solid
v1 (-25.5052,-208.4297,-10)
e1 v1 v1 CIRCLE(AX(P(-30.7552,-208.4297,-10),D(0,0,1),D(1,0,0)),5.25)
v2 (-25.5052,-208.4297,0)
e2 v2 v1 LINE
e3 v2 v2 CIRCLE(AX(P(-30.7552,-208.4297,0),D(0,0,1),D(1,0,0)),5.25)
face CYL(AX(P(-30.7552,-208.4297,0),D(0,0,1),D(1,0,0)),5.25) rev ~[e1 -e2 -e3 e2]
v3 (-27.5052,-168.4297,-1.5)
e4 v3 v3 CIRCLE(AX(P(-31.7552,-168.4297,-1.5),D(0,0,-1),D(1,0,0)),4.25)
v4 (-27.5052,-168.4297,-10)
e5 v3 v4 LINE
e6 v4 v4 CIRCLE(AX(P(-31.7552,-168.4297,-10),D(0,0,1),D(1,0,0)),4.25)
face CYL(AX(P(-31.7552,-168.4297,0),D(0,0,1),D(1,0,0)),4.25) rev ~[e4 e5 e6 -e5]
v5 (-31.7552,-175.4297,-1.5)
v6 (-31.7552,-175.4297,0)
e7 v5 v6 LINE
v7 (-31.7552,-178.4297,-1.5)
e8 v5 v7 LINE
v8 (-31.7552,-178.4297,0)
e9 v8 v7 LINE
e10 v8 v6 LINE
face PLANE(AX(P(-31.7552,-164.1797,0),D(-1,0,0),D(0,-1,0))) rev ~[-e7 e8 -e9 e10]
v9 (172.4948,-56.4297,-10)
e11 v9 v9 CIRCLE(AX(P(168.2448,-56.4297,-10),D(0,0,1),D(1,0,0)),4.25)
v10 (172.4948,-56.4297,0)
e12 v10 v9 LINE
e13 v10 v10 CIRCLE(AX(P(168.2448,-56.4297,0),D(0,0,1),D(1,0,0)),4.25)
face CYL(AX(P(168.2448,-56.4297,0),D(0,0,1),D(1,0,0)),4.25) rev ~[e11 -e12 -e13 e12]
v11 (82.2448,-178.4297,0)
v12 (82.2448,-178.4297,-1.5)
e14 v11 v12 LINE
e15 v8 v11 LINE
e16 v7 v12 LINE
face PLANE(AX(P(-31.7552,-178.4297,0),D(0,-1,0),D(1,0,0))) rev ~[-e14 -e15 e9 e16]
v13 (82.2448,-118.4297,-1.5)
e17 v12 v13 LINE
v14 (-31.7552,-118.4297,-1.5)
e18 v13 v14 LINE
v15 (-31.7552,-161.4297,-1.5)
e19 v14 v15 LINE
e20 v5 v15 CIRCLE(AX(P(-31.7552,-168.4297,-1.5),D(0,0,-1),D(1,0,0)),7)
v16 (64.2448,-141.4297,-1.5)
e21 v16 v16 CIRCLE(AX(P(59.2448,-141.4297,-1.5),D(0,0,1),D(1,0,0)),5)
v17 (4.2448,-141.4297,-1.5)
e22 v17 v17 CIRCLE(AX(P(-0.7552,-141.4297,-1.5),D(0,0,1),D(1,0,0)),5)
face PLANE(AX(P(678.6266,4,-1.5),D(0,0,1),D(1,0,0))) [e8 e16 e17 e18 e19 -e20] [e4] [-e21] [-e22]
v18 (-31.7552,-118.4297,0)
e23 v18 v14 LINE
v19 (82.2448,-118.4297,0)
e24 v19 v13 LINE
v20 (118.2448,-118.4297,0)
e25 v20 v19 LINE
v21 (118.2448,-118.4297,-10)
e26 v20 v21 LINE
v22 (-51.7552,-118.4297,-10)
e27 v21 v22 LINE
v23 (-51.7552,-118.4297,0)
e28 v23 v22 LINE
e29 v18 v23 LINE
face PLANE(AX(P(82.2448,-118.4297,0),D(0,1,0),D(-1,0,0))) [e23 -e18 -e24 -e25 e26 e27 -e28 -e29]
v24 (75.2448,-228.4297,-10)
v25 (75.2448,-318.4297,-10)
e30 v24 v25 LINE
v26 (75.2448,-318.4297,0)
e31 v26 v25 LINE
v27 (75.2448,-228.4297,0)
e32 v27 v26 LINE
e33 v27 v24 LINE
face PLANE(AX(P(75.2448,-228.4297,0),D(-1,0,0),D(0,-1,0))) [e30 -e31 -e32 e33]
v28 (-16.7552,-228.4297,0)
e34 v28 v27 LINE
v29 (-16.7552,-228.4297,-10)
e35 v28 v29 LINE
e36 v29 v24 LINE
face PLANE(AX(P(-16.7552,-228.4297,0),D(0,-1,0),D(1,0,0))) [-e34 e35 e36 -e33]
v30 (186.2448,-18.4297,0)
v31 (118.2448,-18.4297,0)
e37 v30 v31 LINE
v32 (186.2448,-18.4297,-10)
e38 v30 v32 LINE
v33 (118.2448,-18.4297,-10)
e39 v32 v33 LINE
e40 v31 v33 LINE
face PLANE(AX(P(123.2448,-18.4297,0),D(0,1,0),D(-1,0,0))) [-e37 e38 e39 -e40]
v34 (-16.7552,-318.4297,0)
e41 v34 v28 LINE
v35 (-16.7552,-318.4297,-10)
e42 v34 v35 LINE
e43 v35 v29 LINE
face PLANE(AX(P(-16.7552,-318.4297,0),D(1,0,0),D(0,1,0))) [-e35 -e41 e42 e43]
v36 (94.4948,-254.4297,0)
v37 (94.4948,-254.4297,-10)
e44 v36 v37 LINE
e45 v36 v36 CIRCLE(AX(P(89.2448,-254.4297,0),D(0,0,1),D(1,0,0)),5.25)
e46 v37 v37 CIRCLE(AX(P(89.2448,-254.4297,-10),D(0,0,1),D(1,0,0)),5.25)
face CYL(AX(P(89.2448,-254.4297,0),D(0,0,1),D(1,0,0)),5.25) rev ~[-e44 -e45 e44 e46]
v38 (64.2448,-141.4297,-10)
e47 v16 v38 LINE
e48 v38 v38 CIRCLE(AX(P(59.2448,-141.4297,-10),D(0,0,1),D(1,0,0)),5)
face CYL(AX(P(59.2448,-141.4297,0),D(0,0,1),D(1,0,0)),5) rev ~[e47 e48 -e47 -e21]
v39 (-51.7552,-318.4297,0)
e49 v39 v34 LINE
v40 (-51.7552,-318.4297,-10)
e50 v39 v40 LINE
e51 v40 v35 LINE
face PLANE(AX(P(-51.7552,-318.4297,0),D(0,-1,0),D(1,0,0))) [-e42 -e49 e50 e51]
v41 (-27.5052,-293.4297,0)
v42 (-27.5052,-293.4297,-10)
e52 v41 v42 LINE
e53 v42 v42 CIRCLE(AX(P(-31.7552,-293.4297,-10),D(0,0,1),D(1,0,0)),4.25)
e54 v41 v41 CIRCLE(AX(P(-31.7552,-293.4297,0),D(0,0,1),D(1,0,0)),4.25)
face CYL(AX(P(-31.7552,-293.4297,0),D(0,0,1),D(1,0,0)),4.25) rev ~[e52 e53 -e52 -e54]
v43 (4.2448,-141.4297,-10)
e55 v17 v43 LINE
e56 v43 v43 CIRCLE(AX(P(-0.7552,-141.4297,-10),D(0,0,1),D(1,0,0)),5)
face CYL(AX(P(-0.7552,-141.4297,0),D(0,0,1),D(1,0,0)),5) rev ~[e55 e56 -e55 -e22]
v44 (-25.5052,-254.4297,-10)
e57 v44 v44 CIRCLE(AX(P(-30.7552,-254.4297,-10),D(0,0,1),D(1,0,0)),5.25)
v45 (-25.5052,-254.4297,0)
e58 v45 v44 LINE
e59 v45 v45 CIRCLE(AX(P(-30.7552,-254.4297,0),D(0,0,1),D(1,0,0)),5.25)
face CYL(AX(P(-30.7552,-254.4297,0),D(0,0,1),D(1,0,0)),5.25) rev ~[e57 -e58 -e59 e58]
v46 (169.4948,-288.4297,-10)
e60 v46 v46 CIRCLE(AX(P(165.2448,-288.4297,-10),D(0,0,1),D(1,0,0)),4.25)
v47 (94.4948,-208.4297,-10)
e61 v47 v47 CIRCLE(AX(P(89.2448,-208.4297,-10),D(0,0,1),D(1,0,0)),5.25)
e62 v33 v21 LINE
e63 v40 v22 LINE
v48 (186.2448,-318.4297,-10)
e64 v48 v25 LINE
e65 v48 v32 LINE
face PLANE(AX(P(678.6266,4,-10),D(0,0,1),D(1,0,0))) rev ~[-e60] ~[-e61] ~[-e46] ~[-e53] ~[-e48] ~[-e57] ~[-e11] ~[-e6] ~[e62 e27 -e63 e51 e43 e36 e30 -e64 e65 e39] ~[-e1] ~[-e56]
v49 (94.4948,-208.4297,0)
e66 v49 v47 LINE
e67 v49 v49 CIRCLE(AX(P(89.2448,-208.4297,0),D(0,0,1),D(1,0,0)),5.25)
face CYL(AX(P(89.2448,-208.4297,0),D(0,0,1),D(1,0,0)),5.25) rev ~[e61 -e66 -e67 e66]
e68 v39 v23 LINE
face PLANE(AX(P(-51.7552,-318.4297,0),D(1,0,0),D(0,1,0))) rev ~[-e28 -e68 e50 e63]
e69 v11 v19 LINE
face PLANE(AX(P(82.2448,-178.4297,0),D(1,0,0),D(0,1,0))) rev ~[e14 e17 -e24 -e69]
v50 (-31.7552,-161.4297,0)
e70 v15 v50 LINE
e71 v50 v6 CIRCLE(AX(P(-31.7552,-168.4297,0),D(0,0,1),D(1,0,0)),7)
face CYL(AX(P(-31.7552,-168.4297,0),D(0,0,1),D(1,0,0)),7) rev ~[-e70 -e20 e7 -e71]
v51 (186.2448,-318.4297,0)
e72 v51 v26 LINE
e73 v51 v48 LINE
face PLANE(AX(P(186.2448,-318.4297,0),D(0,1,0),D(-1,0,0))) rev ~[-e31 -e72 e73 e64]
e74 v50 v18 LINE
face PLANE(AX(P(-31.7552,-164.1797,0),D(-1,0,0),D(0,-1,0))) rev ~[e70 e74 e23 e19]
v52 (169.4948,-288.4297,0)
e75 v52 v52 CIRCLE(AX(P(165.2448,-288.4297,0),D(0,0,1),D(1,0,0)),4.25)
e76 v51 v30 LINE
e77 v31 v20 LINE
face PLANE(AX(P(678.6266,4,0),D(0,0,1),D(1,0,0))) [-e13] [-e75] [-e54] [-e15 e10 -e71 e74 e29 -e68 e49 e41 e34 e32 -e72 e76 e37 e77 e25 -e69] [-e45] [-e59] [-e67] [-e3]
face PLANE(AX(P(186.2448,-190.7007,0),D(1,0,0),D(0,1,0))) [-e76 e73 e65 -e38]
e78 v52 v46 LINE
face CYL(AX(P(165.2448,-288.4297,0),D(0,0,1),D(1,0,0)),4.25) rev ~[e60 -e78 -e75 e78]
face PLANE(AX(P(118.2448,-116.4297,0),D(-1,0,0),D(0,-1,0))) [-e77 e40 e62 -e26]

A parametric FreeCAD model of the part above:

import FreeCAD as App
import Part
import Sketcher
Q = App.Units.Quantity

doc = App.newDocument("Part")
body = doc.addObject("PartDesign::Body", "Body")

sketch1 = doc.addObject("Sketcher::SketchObject", "Sketch")
body.addObject(sketch1)
sketch1.AttachmentSupport = (doc.XY_Plane, [""])
sketch1.MapMode = "FlatFace"
sketch1.addGeometry([
    Part.LineSegment(App.Vector(-51.8, -118.4, 0), App.Vector(-51.8, -318.4, 0)),
    Part.LineSegment(App.Vector(-51.8, -318.4, 0), App.Vector(-16.8, -318.4, 0)),
    Part.LineSegment(App.Vector(-16.8, -318.4, 0), App.Vector(-16.8, -228.4, 0)),
    Part.LineSegment(App.Vector(-16.8, -228.4, 0), App.Vector(75.2, -228.4, 0)),
    Part.LineSegment(App.Vector(75.2, -228.4, 0), App.Vector(75.2, -318.4, 0)),
    Part.LineSegment(App.Vector(75.2, -318.4, 0), App.Vector(186.2, -318.4, 0)),
    Part.LineSegment(App.Vector(186.2, -318.4, 0), App.Vector(186.2, -18.4, 0)),
    Part.LineSegment(App.Vector(186.2, -18.4, 0), App.Vector(118.2, -18.4, 0)),
    Part.LineSegment(App.Vector(118.2, -18.4, 0), App.Vector(118.2, -118.4, 0)),
    Part.LineSegment(App.Vector(118.2, -118.4, 0), App.Vector(-51.8, -118.4, 0)),
    Part.Circle(App.Vector(-0.8, -141.4, 0), App.Vector(0, 0, 1), 5),
    Part.Circle(App.Vector(59.2, -141.4, 0), App.Vector(0, 0, 1), 5),
    Part.Circle(App.Vector(168.2, -56.4, 0), App.Vector(0, 0, 1), 4.2),
    Part.Circle(App.Vector(165.2, -288.4, 0), App.Vector(0, 0, 1), 4.2),
    Part.Circle(App.Vector(-31.8, -293.4, 0), App.Vector(0, 0, 1), 4.2),
], False)
sketch1.addConstraint([
    Sketcher.Constraint("Coincident", 0, 2, 1, 1),
    Sketcher.Constraint("Coincident", 1, 2, 2, 1),
    Sketcher.Constraint("Coincident", 2, 2, 3, 1),
    Sketcher.Constraint("Coincident", 3, 2, 4, 1),
    Sketcher.Constraint("Coincident", 4, 2, 5, 1),
    Sketcher.Constraint("Coincident", 5, 2, 6, 1),
    Sketcher.Constraint("Coincident", 6, 2, 7, 1),
    Sketcher.Constraint("Coincident", 7, 2, 8, 1),
    Sketcher.Constraint("Coincident", 8, 2, 9, 1),
    Sketcher.Constraint("Coincident", 9, 2, 0, 1),
    Sketcher.Constraint("Vertical", 0),
    Sketcher.Constraint("Horizontal", 1),
    Sketcher.Constraint("Vertical", 2),
    Sketcher.Constraint("Horizontal", 3),
    Sketcher.Constraint("Vertical", 4),
    Sketcher.Constraint("Horizontal", 5),
    Sketcher.Constraint("Vertical", 6),
    Sketcher.Constraint("Horizontal", 7),
    Sketcher.Constraint("Vertical", 8),
    Sketcher.Constraint("Horizontal", 9),
    Sketcher.Constraint("Equal", 10, 11),
    Sketcher.Constraint("Equal", 12, 13),
    Sketcher.Constraint("Equal", 13, 14),
    Sketcher.Constraint("Horizontal", 10, 3, 11, 3),
    Sketcher.Constraint("Horizontal", 1, 2, 4, 2),
    Sketcher.Constraint("Diameter", 10, Q("10 mm")),
    Sketcher.Constraint("Diameter", 12, Q("8.5 mm")),
    Sketcher.Constraint("DistanceX", 1, 1, 1, 2, Q("35 mm")),
    Sketcher.Constraint("DistanceX", 3, 1, 3, 2, Q("92 mm")),
    Sketcher.Constraint("DistanceX", 7, 2, 7, 1, Q("68 mm")),
    Sketcher.Constraint("DistanceX", 9, 2, 9, 1, Q("170 mm")),
    Sketcher.Constraint("DistanceY", 0, 2, 0, 1, Q("200 mm")),
    Sketcher.Constraint("DistanceY", 8, 2, 8, 1, Q("100 mm")),
    Sketcher.Constraint("DistanceX", 10, 3, 11, 3, Q("60 mm")),
    Sketcher.Constraint("DistanceX", 14, 3, 12, 3, Q("200 mm")),
    Sketcher.Constraint("DistanceY", 13, 3, 3, 2, Q("60 mm")),
    Sketcher.Constraint("DistanceY", 2, 1, 2, 2, Q("90 mm")),
    Sketcher.Constraint("DistanceX", 11, 3, 12, 3, Q("109 mm")),
    Sketcher.Constraint("DistanceY", 11, 3, 12, 3, Q("85 mm")),
    Sketcher.Constraint("DistanceX", 11, 3, 13, 3, Q("106 mm")),
    Sketcher.Constraint("DistanceY", 13, 3, 11, 3, Q("147 mm")),
    Sketcher.Constraint("DistanceY", 14, 3, 10, 3, Q("152 mm")),
    Sketcher.Constraint("DistanceX", 0, 2, 14, 3, Q("20 mm")),
    Sketcher.Constraint("DistanceX", 10, 3, -1, 1, Q("0.7552 mm")),
    Sketcher.Constraint("DistanceY", 10, 3, -1, 1, Q("141.4297 mm")),
])
pad1 = doc.addObject("PartDesign::Pad", "Pad")
body.addObject(pad1)
pad1.Profile = sketch1
pad1.Length = 10
pad1.Reversed = True

sketch2 = doc.addObject("Sketcher::SketchObject", "Sketch001")
body.addObject(sketch2)
sketch2.AttachmentSupport = (doc.XY_Plane, [""])
sketch2.MapMode = "FlatFace"
sketch2.addGeometry([
    Part.LineSegment(App.Vector(-32, -178, 0), App.Vector(82, -178, 0)),
    Part.LineSegment(App.Vector(82, -178, 0), App.Vector(82, -118, 0)),
    Part.LineSegment(App.Vector(82, -118, 0), App.Vector(-32, -118, 0)),
    Part.LineSegment(App.Vector(-32, -118, 0), App.Vector(-32, -178, 0)),
    Part.Circle(App.Vector(-1, -141, 0), App.Vector(0, 0, 1), 5),
    Part.Circle(App.Vector(59, -141, 0), App.Vector(0, 0, 1), 5),
], False)
sketch2.addConstraint([
    Sketcher.Constraint("Coincident", 0, 2, 1, 1),
    Sketcher.Constraint("Coincident", 1, 2, 2, 1),
    Sketcher.Constraint("Coincident", 2, 2, 3, 1),
    Sketcher.Constraint("Coincident", 3, 2, 0, 1),
    Sketcher.Constraint("Horizontal", 0),
    Sketcher.Constraint("Vertical", 1),
    Sketcher.Constraint("Horizontal", 2),
    Sketcher.Constraint("Vertical", 3),
    Sketcher.Constraint("Equal", 4, 5),
    Sketcher.Constraint("Horizontal", 4, 3, 5, 3),
    Sketcher.Constraint("Diameter", 4, Q("10 mm")),
    Sketcher.Constraint("DistanceX", 0, 1, 0, 2, Q("114 mm")),
    Sketcher.Constraint("DistanceY", 1, 1, 1, 2, Q("60 mm")),
    Sketcher.Constraint("DistanceX", 4, 3, 5, 3, Q("60 mm")),
    Sketcher.Constraint("DistanceX", 5, 3, 0, 2, Q("23 mm")),
    Sketcher.Constraint("DistanceY", 0, 2, 5, 3, Q("37 mm")),
    Sketcher.Constraint("DistanceX", 4, 3, -1, 1, Q("0.7552 mm")),
    Sketcher.Constraint("DistanceY", 4, 3, -1, 1, Q("141.4297 mm")),
])
pocket1 = doc.addObject("PartDesign::Pocket", "Pocket")
body.addObject(pocket1)
pocket1.Profile = sketch2
pocket1.Length = 1.5

sketch3 = doc.addObject("Sketcher::SketchObject", "Sketch002")
body.addObject(sketch3)
sketch3.AttachmentSupport = (doc.XY_Plane, [""])
sketch3.MapMode = "FlatFace"
sketch3.addGeometry(Part.Circle(App.Vector(-31.8, -168.4, 0), App.Vector(0, 0, 1), 4.2), False)
sketch3.addConstraint([
    Sketcher.Constraint("Diameter", 0, Q("8.5 mm")),
    Sketcher.Constraint("DistanceX", 0, 3, -1, 1, Q("31.7552 mm")),
    Sketcher.Constraint("DistanceY", 0, 3, -1, 1, Q("168.4297 mm")),
])
pocket2 = doc.addObject("PartDesign::Pocket", "Pocket001")
body.addObject(pocket2)
pocket2.Profile = sketch3
pocket2.Length = 10

sketch4 = doc.addObject("Sketcher::SketchObject", "Sketch003")
body.addObject(sketch4)
sketch4.AttachmentSupport = (doc.XY_Plane, [""])
sketch4.MapMode = "FlatFace"
sketch4.addGeometry([
    Part.Circle(App.Vector(-31.8, -168.4, 0), App.Vector(0, 0, 1), 7),
    Part.Circle(App.Vector(-31.8, -168.4, 0), App.Vector(0, 0, 1), 4.2),
], False)
sketch4.addConstraint([
    Sketcher.Constraint("Coincident", 1, 3, 0, 3),
    Sketcher.Constraint("Diameter", 0, Q("14 mm")),
    Sketcher.Constraint("Diameter", 1, Q("8.5 mm")),
    Sketcher.Constraint("DistanceX", 0, 3, -1, 1, Q("31.7552 mm")),
    Sketcher.Constraint("DistanceY", 0, 3, -1, 1, Q("168.4297 mm")),
])
pocket3 = doc.addObject("PartDesign::Pocket", "Pocket002")
body.addObject(pocket3)
pocket3.Profile = sketch4
pocket3.Length = 1.5

sketch5 = doc.addObject("Sketcher::SketchObject", "Sketch004")
body.addObject(sketch5)
sketch5.AttachmentSupport = (doc.XY_Plane, [""])
sketch5.MapMode = "FlatFace"
sketch5.addGeometry([
    Part.Circle(App.Vector(-31, -254, 0), App.Vector(0, 0, 1), 5),
    Part.Circle(App.Vector(-31, -208, 0), App.Vector(0, 0, 1), 5),
    Part.Circle(App.Vector(89, -254, 0), App.Vector(0, 0, 1), 5),
    Part.Circle(App.Vector(89, -208, 0), App.Vector(0, 0, 1), 5),
], False)
sketch5.addConstraint([
    Sketcher.Constraint("Equal", 0, 1),
    Sketcher.Constraint("Equal", 1, 2),
    Sketcher.Constraint("Equal", 2, 3),
    Sketcher.Constraint("Horizontal", 0, 3, 2, 3),
    Sketcher.Constraint("Horizontal", 1, 3, 3, 3),
    Sketcher.Constraint("Vertical", 0, 3, 1, 3),
    Sketcher.Constraint("Vertical", 2, 3, 3, 3),
    Sketcher.Constraint("Diameter", 0, Q("10.5 mm")),
    Sketcher.Constraint("DistanceY", 0, 3, 1, 3, Q("46 mm")),
    Sketcher.Constraint("DistanceX", 0, 3, 2, 3, Q("120 mm")),
    Sketcher.Constraint("DistanceX", 0, 3, -1, 1, Q("30.7552 mm")),
    Sketcher.Constraint("DistanceY", 0, 3, -1, 1, Q("254.4297 mm")),
])
pocket4 = doc.addObject("PartDesign::Pocket", "Pocket003")
body.addObject(pocket4)
pocket4.Profile = sketch5
pocket4.Length = 10.5

doc.recompute()
